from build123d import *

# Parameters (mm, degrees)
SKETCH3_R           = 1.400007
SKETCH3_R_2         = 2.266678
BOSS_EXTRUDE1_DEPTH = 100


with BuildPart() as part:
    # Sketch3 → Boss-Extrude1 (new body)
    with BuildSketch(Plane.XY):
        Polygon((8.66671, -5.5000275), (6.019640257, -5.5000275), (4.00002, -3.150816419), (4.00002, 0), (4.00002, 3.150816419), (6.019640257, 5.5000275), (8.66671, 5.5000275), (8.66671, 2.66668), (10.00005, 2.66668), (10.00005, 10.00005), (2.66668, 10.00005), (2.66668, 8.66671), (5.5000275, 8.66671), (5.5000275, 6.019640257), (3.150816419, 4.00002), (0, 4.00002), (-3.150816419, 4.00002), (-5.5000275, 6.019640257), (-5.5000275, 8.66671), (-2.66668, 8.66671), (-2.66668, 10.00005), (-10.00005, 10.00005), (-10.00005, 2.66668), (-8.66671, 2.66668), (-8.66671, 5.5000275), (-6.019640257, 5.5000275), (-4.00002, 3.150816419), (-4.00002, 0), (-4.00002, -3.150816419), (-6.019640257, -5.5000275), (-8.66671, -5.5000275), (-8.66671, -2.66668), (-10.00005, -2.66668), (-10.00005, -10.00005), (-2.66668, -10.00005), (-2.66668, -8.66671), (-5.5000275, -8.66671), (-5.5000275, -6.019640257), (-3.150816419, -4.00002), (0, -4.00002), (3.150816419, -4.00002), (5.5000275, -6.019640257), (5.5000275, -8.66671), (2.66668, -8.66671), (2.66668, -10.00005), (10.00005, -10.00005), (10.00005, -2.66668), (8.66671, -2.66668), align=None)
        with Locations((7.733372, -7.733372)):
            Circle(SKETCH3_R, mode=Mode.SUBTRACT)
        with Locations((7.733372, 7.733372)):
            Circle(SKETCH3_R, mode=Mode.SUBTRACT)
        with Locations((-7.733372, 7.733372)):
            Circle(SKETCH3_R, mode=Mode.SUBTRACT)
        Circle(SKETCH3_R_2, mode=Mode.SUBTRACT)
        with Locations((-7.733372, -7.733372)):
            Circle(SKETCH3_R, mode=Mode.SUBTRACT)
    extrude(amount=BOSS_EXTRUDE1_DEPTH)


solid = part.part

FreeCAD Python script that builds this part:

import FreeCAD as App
import Part
import Sketcher
Q = App.Units.Quantity


def add_polygon(sketch, points):
    """Adds a closed chain of lines whose ends are joined by coincident constraints."""
    first, n = sketch.GeometryCount, len(points)
    for a, b in zip(points, points[1:] + points[:1]):
        sketch.addGeometry(Part.LineSegment(App.Vector(*a, 0), App.Vector(*b, 0)), False)
    for i in range(n):
        sketch.addConstraint(Sketcher.Constraint("Coincident", first + i, 2, first + (i + 1) % n, 1))

doc = App.newDocument("Part")
body = doc.addObject("PartDesign::Body", "Body")

# Sketch on XY plane
sketch1 = body.newObject("Sketcher::SketchObject", "Sketch")
sketch1.AttachmentSupport = (doc.getObject("XY_Plane"), [""])
sketch1.MapMode = "FlatFace"
add_polygon(sketch1, [(8.7, -5.5), (6, -5.5), (4, -3.2), (4, 3.2), (6, 5.5), (8.7, 5.5), (8.7, 2.7), (10, 2.7), (10, 10), (2.7, 10), (2.7, 8.7), (5.5, 8.7), (5.5, 6), (3.2, 4), (-3.2, 4), (-5.5, 6), (-5.5, 8.7), (-2.7, 8.7), (-2.7, 10), (-10, 10), (-10, 2.7), (-8.7, 2.7), (-8.7, 5.5), (-6, 5.5), (-4, 3.2), (-4, -3.2), (-6, -5.5), (-8.7, -5.5), (-8.7, -2.7), (-10, -2.7), (-10, -10), (-2.7, -10), (-2.7, -8.7), (-5.5, -8.7), (-5.5, -6), (-3.2, -4), (3.2, -4), (5.5, -6), (5.5, -8.7), (2.7, -8.7), (2.7, -10), (10, -10), (10, -2.7), (8.7, -2.7)])  # lines 0-43
sketch1.addGeometry(Part.Circle(App.Vector(-7.7, -7.7, 0), App.Vector(0, 0, 1), 1.4), False)  # 44
sketch1.addGeometry(Part.Circle(App.Vector(7.7, -7.7, 0), App.Vector(0, 0, 1), 1.4), False)  # 45
sketch1.addGeometry(Part.Circle(App.Vector(-7.7, 7.7, 0), App.Vector(0, 0, 1), 1.4), False)  # 46
sketch1.addGeometry(Part.Circle(App.Vector(0, 0, 0), App.Vector(0, 0, 1), 2.3), False)  # 47
sketch1.addGeometry(Part.Circle(App.Vector(7.7, 7.7, 0), App.Vector(0, 0, 1), 1.4), False)  # 48
sketch1.addConstraint(Sketcher.Constraint("Horizontal", 0))
sketch1.addConstraint(Sketcher.Constraint("Vertical", 2))
sketch1.addConstraint(Sketcher.Constraint("Horizontal", 4))
sketch1.addConstraint(Sketcher.Constraint("Vertical", 5))
sketch1.addConstraint(Sketcher.Constraint("Horizontal", 6))
sketch1.addConstraint(Sketcher.Constraint("Vertical", 7))
sketch1.addConstraint(Sketcher.Constraint("Horizontal", 8))
sketch1.addConstraint(Sketcher.Constraint("Vertical", 9))
sketch1.addConstraint(Sketcher.Constraint("Horizontal", 10))
sketch1.addConstraint(Sketcher.Constraint("Vertical", 11))
sketch1.addConstraint(Sketcher.Constraint("Horizontal", 13))
sketch1.addConstraint(Sketcher.Constraint("Vertical", 15))
sketch1.addConstraint(Sketcher.Constraint("Horizontal", 16))
sketch1.addConstraint(Sketcher.Constraint("Vertical", 17))
sketch1.addConstraint(Sketcher.Constraint("Horizontal", 18))
sketch1.addConstraint(Sketcher.Constraint("Vertical", 19))
sketch1.addConstraint(Sketcher.Constraint("Horizontal", 20))
sketch1.addConstraint(Sketcher.Constraint("Vertical", 21))
sketch1.addConstraint(Sketcher.Constraint("Horizontal", 22))
sketch1.addConstraint(Sketcher.Constraint("Vertical", 24))
sketch1.addConstraint(Sketcher.Constraint("Horizontal", 26))
sketch1.addConstraint(Sketcher.Constraint("Vertical", 27))
sketch1.addConstraint(Sketcher.Constraint("Horizontal", 28))
sketch1.addConstraint(Sketcher.Constraint("Vertical", 29))
sketch1.addConstraint(Sketcher.Constraint("Horizontal", 30))
sketch1.addConstraint(Sketcher.Constraint("Vertical", 31))
sketch1.addConstraint(Sketcher.Constraint("Horizontal", 32))
sketch1.addConstraint(Sketcher.Constraint("Vertical", 33))
sketch1.addConstraint(Sketcher.Constraint("Horizontal", 35))
sketch1.addConstraint(Sketcher.Constraint("Vertical", 37))
sketch1.addConstraint(Sketcher.Constraint("Horizontal", 38))
sketch1.addConstraint(Sketcher.Constraint("Vertical", 39))
sketch1.addConstraint(Sketcher.Constraint("Horizontal", 40))
sketch1.addConstraint(Sketcher.Constraint("Vertical", 41))
sketch1.addConstraint(Sketcher.Constraint("Horizontal", 42))
sketch1.addConstraint(Sketcher.Constraint("Vertical", 43))
sketch1.addConstraint(Sketcher.Constraint("Coincident", 47, 3, -1, 1))
sketch1.addConstraint(Sketcher.Constraint("Equal", 44, 45))
sketch1.addConstraint(Sketcher.Constraint("Equal", 45, 46))
sketch1.addConstraint(Sketcher.Constraint("Equal", 46, 48))
sketch1.addConstraint(Sketcher.Constraint("Symmetric", 45, 3, 46, 3, -1, 1))
sketch1.addConstraint(Sketcher.Constraint("Symmetric", 44, 3, 48, 3, -1, 1))
sketch1.addConstraint(Sketcher.Constraint("Symmetric", 0, 2, 22, 2, -1, 1))
sketch1.addConstraint(Sketcher.Constraint("Symmetric", 1, 2, 23, 2, -1, 1))
sketch1.addConstraint(Sketcher.Constraint("Symmetric", 3, 2, 25, 2, -1, 1))
sketch1.addConstraint(Sketcher.Constraint("Symmetric", 5, 2, 27, 2, -1, 1))
sketch1.addConstraint(Sketcher.Constraint("Symmetric", 7, 2, 29, 2, -1, 1))
sketch1.addConstraint(Sketcher.Constraint("Symmetric", 9, 2, 31, 2, -1, 1))
sketch1.addConstraint(Sketcher.Constraint("Symmetric", 11, 2, 33, 2, -1, 1))
sketch1.addConstraint(Sketcher.Constraint("Symmetric", 12, 2, 34, 2, -1, 1))
sketch1.addConstraint(Sketcher.Constraint("Symmetric", 14, 2, 36, 2, -1, 1))
sketch1.addConstraint(Sketcher.Constraint("Symmetric", 16, 2, 38, 2, -1, 1))
sketch1.addConstraint(Sketcher.Constraint("Symmetric", 18, 2, 40, 2, -1, 1))
sketch1.addConstraint(Sketcher.Constraint("Symmetric", 20, 2, 42, 2, -1, 1))
sketch1.addConstraint(Sketcher.Constraint("Symmetric", 44, 3, 45, 3, -2))
sketch1.addConstraint(Sketcher.Constraint("Symmetric", 11, 2, 14, 2, -2))
sketch1.addConstraint(Sketcher.Constraint("Symmetric", 9, 2, 16, 2, -2))
sketch1.addConstraint(Sketcher.Constraint("Symmetric", 7, 2, 18, 2, -2))
sketch1.addConstraint(Sketcher.Constraint("Symmetric", 5, 2, 20, 2, -2))
sketch1.addConstraint(Sketcher.Constraint("Symmetric", 3, 2, 22, 2, -2))
sketch1.addConstraint(Sketcher.Constraint("Perpendicular", 1, 12))
sketch1.addConstraint(Sketcher.Constraint("Perpendicular", 3, 14))
sketch1.addConstraint(Sketcher.Constraint("Perpendicular", 14, 25))
sketch1.addConstraint(Sketcher.Constraint("Perpendicular", 25, 36))
sketch1.addConstraint(Sketcher.Constraint("Horizontal", 2, 2, 23, 2))
sketch1.addConstraint(Sketcher.Constraint("Equal", 35, 2))
sketch1.addConstraint(Sketcher.Constraint("Equal", 38, 5))
sketch1.addConstraint(Sketcher.Constraint("Equal", 40, 7))
sketch1.addConstraint(Sketcher.Constraint("Equal", 42, 9))
sketch1.addConstraint(Sketcher.Constraint("Equal", 26, 11))
sketch1.addConstraint(Sketcher.Constraint("Equal", 3, 12))
sketch1.addConstraint(Sketcher.Constraint("Diameter", 44, Q("2.800014 mm")))
sketch1.addConstraint(Sketcher.Constraint("Diameter", 47, Q("4.533356 mm")))
sketch1.addConstraint(Sketcher.Constraint("DistanceX", 0, 2, 0, 1, Q("2.64707 mm")))
sketch1.addConstraint(Sketcher.Constraint("DistanceX", 6, 1, 6, 2, Q("1.33334 mm")))
sketch1.addConstraint(Sketcher.Constraint("DistanceX", 8, 2, 8, 1, Q("7.33337 mm")))
sketch1.addConstraint(Sketcher.Constraint("DistanceY", 0, 2, 48, 3, Q("13.2334 mm")))
sketch1.addConstraint(Sketcher.Constraint("Distance", 1, Q("3.098009 mm")))
sketch1.addConstraint(Sketcher.Constraint("DistanceX", 10, 1, 10, 2, Q("2.833347 mm")))
sketch1.addConstraint(Sketcher.Constraint("DistanceX", 13, 2, 13, 1, Q("6.301633 mm")))
sketch1.addConstraint(Sketcher.Constraint("DistanceX", -1, 1, 0, 2, Q("6.01964 mm")))
sketch1.addConstraint(Sketcher.Constraint("DistanceX", 0, 2, 45, 3, Q("1.713732 mm")))
pad1 = body.newObject("PartDesign::Pad", "Pad")
pad1.Profile = sketch1
pad1.Length = 100

doc.recompute()
